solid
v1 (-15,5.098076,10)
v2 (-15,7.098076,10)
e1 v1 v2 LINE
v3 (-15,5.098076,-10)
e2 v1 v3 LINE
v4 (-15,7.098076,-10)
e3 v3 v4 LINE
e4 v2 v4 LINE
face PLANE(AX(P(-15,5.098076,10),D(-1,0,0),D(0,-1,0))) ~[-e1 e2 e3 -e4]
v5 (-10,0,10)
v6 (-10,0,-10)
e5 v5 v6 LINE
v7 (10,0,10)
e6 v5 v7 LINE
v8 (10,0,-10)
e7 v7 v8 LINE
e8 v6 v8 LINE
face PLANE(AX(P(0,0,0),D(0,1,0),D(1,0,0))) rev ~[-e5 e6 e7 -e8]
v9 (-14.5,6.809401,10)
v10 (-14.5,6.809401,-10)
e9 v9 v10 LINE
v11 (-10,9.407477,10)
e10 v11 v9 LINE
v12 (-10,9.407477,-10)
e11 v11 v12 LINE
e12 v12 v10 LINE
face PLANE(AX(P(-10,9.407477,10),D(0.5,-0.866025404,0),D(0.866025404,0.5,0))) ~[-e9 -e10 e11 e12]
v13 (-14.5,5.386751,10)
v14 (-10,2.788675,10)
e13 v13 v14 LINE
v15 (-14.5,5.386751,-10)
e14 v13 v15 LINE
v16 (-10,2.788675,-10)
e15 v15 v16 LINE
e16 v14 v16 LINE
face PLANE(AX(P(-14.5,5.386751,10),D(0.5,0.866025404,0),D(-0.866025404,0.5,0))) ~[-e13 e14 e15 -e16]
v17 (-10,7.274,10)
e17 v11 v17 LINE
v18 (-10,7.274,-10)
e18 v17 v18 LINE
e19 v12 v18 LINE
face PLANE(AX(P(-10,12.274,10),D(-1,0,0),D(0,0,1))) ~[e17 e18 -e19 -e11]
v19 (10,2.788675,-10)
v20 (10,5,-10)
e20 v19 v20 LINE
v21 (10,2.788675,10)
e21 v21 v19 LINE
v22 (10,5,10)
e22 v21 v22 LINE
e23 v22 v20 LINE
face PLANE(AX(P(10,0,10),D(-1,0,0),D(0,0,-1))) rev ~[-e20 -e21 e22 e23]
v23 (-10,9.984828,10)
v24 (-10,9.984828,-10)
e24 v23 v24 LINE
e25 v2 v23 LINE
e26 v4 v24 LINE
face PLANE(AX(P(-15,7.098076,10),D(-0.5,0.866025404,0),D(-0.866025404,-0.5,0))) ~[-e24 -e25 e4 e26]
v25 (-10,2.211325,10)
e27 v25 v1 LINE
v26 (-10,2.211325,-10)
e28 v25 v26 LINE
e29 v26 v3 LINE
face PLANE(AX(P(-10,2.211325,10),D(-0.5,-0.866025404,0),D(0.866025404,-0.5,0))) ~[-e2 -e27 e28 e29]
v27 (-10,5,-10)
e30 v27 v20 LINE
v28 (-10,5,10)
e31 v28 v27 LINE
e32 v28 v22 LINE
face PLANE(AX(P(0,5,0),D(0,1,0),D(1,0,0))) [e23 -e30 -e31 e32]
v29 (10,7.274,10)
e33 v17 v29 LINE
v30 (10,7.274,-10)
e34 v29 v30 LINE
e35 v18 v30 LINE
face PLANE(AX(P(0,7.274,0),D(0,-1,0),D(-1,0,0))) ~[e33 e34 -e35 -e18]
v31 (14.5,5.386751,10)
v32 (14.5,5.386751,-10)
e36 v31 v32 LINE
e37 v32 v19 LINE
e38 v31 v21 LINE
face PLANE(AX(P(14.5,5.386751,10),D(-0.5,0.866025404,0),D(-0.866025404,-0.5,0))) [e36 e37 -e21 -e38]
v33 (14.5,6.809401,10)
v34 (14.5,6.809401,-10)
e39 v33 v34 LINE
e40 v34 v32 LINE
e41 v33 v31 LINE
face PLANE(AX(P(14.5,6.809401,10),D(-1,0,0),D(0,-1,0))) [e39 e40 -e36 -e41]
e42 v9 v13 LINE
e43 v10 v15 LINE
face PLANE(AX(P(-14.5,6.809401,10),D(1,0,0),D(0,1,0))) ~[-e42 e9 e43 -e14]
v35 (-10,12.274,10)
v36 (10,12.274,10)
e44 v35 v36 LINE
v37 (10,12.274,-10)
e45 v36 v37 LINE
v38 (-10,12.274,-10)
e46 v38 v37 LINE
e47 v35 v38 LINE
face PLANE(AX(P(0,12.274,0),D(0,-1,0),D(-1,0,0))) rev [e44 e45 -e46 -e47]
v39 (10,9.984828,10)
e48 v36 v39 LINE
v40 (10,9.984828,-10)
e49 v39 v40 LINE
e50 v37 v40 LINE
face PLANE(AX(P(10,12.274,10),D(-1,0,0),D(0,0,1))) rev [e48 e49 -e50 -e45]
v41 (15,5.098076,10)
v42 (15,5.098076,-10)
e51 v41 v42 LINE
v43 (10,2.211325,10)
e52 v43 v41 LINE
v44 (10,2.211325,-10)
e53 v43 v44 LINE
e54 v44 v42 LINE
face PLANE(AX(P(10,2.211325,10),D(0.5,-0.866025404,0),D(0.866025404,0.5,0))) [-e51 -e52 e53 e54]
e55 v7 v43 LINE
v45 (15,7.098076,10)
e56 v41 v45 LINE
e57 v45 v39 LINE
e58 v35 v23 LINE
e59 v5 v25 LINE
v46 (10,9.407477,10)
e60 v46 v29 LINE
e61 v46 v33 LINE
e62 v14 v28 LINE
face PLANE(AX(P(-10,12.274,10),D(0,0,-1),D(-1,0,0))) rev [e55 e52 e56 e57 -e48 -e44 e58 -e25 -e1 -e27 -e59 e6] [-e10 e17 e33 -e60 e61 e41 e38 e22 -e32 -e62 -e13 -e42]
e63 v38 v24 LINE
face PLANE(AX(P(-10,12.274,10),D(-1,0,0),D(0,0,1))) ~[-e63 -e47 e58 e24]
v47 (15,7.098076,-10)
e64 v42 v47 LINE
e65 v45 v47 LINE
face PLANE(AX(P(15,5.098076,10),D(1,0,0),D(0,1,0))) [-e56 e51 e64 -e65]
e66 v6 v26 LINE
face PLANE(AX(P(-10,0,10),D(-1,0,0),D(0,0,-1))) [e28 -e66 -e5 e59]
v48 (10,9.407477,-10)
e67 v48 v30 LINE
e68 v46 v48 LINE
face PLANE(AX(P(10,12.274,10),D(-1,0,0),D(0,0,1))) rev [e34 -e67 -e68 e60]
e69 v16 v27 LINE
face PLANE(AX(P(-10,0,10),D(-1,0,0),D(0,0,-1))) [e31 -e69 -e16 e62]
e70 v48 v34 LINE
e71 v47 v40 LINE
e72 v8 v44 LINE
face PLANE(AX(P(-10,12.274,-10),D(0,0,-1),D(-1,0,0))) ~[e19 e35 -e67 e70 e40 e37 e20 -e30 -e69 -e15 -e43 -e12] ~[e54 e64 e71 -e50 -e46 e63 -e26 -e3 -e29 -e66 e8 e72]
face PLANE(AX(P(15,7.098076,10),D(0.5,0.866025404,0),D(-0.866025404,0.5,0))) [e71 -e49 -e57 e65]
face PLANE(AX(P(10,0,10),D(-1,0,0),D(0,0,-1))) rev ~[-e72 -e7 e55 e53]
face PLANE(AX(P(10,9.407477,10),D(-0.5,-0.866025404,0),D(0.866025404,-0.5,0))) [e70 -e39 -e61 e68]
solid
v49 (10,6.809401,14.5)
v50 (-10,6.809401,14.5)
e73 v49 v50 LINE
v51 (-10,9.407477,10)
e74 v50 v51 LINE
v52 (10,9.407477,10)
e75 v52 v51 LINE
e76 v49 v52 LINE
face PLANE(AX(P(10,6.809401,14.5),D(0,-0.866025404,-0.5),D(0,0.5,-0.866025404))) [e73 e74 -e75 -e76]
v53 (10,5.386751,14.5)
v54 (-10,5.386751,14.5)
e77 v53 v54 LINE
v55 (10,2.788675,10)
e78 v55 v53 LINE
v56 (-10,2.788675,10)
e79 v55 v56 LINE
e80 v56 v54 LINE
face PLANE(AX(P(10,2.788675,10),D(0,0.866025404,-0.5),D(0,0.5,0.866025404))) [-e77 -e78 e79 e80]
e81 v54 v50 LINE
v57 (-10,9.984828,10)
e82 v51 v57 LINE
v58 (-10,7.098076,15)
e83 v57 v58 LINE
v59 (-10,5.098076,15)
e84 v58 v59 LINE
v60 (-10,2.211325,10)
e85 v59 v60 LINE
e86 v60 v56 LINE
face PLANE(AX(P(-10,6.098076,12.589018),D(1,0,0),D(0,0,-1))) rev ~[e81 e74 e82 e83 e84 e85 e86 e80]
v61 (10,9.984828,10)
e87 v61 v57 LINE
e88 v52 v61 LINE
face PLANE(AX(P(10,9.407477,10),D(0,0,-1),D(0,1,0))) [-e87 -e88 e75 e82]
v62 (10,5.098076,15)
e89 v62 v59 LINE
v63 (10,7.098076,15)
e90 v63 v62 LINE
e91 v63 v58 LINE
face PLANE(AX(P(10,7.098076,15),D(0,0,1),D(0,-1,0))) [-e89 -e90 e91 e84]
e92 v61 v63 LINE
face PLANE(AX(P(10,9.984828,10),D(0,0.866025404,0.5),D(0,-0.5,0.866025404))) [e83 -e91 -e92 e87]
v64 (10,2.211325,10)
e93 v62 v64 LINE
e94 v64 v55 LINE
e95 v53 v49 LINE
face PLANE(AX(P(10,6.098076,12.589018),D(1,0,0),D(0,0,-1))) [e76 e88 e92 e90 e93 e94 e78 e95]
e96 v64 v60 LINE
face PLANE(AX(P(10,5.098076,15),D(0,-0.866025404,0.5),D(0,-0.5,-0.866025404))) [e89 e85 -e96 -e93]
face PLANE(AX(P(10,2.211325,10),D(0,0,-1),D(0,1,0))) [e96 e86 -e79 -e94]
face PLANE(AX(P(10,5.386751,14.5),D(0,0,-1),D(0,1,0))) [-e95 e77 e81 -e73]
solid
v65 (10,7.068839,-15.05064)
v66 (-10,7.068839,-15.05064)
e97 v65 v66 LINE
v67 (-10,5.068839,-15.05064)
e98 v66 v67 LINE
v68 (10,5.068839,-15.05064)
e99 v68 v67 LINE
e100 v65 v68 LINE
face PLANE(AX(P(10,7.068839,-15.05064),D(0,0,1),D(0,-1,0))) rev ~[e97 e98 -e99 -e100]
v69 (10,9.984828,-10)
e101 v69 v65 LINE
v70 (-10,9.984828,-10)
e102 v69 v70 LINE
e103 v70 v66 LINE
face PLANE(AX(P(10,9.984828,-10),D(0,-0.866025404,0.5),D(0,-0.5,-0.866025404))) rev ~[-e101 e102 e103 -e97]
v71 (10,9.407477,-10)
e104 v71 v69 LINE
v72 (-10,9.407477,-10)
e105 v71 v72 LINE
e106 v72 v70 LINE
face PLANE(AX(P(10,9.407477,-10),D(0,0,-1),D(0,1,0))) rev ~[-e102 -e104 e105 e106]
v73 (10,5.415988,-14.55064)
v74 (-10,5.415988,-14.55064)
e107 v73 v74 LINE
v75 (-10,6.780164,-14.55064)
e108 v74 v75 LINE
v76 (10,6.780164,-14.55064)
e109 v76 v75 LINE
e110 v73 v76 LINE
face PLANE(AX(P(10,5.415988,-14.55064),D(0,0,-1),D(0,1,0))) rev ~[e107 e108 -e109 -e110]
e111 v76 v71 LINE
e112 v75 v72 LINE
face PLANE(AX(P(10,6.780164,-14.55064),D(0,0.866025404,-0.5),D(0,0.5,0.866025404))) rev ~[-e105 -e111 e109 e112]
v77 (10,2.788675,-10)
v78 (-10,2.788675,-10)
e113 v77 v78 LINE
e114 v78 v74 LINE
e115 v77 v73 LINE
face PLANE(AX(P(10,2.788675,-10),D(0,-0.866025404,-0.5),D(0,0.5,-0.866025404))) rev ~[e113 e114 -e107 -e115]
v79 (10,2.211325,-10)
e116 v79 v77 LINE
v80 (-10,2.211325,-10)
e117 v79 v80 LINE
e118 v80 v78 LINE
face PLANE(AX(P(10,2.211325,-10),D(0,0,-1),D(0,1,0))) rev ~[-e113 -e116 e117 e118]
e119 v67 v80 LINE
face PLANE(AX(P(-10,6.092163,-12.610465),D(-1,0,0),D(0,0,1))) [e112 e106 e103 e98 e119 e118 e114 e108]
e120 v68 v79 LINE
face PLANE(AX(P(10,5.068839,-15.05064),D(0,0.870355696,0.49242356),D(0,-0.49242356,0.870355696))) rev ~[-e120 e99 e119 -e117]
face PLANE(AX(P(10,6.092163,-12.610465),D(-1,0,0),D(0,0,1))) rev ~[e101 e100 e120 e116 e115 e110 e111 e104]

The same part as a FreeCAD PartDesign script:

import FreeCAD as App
import Part
import Sketcher
from FreeCAD import Vector
Q = App.Units.Quantity


def add_polygon(sketch, points):
    """Adds a closed chain of lines whose ends are joined by coincident constraints."""
    first, n = sketch.GeometryCount, len(points)
    for a, b in zip(points, points[1:] + points[:1]):
        sketch.addGeometry(Part.LineSegment(App.Vector(*a, 0), App.Vector(*b, 0)), False)
    for i in range(n):
        sketch.addConstraint(Sketcher.Constraint("Coincident", first + i, 2, first + (i + 1) % n, 1))

doc = App.newDocument("Part")
body = doc.addObject("PartDesign::Body", "Body")

# Sketch on XZ plane
sketch1 = doc.addObject("Sketcher::SketchObject", "Sketch")
body.addObject(sketch1)
sketch1.AttachmentSupport = (doc.XZ_Plane, [""])
sketch1.MapMode = "FlatFace"
add_polygon(sketch1, [(-10, -10), (-10, 10), (10, 10), (10, -10)])  # lines 0-3
sketch1.addConstraint([
    Sketcher.Constraint("Vertical", 0),
    Sketcher.Constraint("Horizontal", 1),
    Sketcher.Constraint("Vertical", 2),
    Sketcher.Constraint("Horizontal", 3),
    Sketcher.Constraint("Symmetric", 0, 2, 2, 2, -1, 1),
    Sketcher.Constraint("Equal", 3, 0),
    Sketcher.Constraint("DistanceX", 1, 1, 1, 2, Q("20 mm")),
])
pad1 = doc.addObject("PartDesign::Pad", "Pad")
body.addObject(pad1)
pad1.Profile = sketch1
pad1.Length = 5
pad1.Reversed = True

# Sketch on XY plane
sketch2 = doc.addObject("Sketcher::SketchObject", "Sketch001")
body.addObject(sketch2)
sketch2.AttachmentSupport = (doc.XY_Plane, [""])
sketch2.MapMode = "FlatFace"
sketch2.AttachmentOffset = App.Placement(Vector(0, 0, 10), App.Rotation())
add_polygon(sketch2, [(10, 2.2), (15, 5.1), (15, 7.1), (10, 10), (10, 9.4), (14.5, 6.8), (14.5, 5.4), (10, 2.8)])  # lines 0-7
sketch2.addConstraint([
    Sketcher.Constraint("Vertical", 1),
    Sketcher.Constraint("Vertical", 3),
    Sketcher.Constraint("Vertical", 5),
    Sketcher.Constraint("Vertical", 7),
    Sketcher.Constraint("Parallel", 2, 4),
    Sketcher.Constraint("Parallel", 0, 6),
    Sketcher.Constraint("Vertical", 3, 2, 6, 2),
    Sketcher.Constraint("Equal", 3, 7),
    Sketcher.Constraint("Equal", 0, 2),
    Sketcher.Constraint("DistanceY", 1, 1, 1, 2, Q("2 mm")),
    Sketcher.Constraint("Angle", 0, Q("30 deg")),
    Sketcher.Constraint("DistanceX", -1, 1, 0, 2, Q("15 mm")),
    Sketcher.Constraint("DistanceX", -1, 1, 2, 2, Q("10 mm")),
    Sketcher.Constraint("DistanceX", -1, 1, 4, 2, Q("14.5 mm")),
    Sketcher.Constraint("DistanceY", 3, 2, 3, 1, Q("0.57735 mm")),
    Sketcher.Constraint("DistanceY", -1, 1, 4, 2, Q("6.809401 mm")),
])
pad2 = doc.addObject("PartDesign::Pad", "Pad001")
body.addObject(pad2)
pad2.Profile = sketch2
pad2.Length = 20
pad2.Reversed = True
doc.recompute()

mirrored = doc.addObject("PartDesign::Mirrored", "Mirrored")
body.addObject(mirrored)
mirrored.Originals = [pad2]
mirrored.MirrorPlane = (doc.YZ_Plane, [""])
body.Tip = mirrored
doc.recompute()

datumplane = doc.addObject("PartDesign::Plane", "DatumPlane")
body.addObject(datumplane)
datumplane.AttachmentSupport = (doc.XZ_Plane, [""])
datumplane.MapMode = "FlatFace"
datumplane.AttachmentOffset = App.Placement(Vector(0, 0, -6.137), App.Rotation())
mirrored2 = doc.addObject("PartDesign::Mirrored", "Mirrored001")
body.addObject(mirrored2)
mirrored2.Originals = [pad1]
mirrored2.MirrorPlane = (datumplane, [""])
body.Tip = mirrored2
body2 = doc.addObject("PartDesign::Body", "Body001")

# Sketch on YZ plane
sketch3 = doc.addObject("Sketcher::SketchObject", "Sketch002")
body2.addObject(sketch3)
sketch3.AttachmentSupport = (doc.getObject("YZ_Plane001"), [""])
sketch3.MapMode = "FlatFace"
sketch3.AttachmentOffset = App.Placement(Vector(0, 0, 10), App.Rotation())
add_polygon(sketch3, [(2.2, 10), (2.8, 10), (5.4, 14.5), (6.8, 14.5), (9.4, 10), (10, 10), (7.1, 15), (5.1, 15)])  # lines 0-7
sketch3.addConstraint([
    Sketcher.Constraint("Horizontal", 0),
    Sketcher.Constraint("Horizontal", 2),
    Sketcher.Constraint("Horizontal", 4),
    Sketcher.Constraint("Horizontal", 6),
    Sketcher.Constraint("Parallel", 3, 5),
    Sketcher.Constraint("Parallel", 1, 7),
    Sketcher.Constraint("Horizontal", 0, 2, 3, 2),
    Sketcher.Constraint("Equal", 0, 4),
    Sketcher.Constraint("Equal", 1, 3),
    Sketcher.Constraint("DistanceX", 6, 2, 6, 1, Q("2 mm")),
    Sketcher.Constraint("Angle", 1, Q("60 deg")),
    Sketcher.Constraint("DistanceY", -1, 1, 0, 2, Q("10 mm")),
    Sketcher.Constraint("DistanceY", -1, 1, 5, 2, Q("15 mm")),
    Sketcher.Constraint("DistanceY", -1, 1, 1, 2, Q("14.5 mm")),
    Sketcher.Constraint("DistanceX", 0, 1, 0, 2, Q("0.57735 mm")),
    Sketcher.Constraint("DistanceX", -1, 1, 2, 2, Q("6.809401 mm")),
])
pad3 = doc.addObject("PartDesign::Pad", "Pad002")
body2.addObject(pad3)
pad3.Profile = sketch3
pad3.Length = 20
pad3.Reversed = True
body3 = doc.addObject("PartDesign::Body", "Body002")

# Sketch on YZ plane
sketch4 = doc.addObject("Sketcher::SketchObject", "Sketch003")
body3.addObject(sketch4)
sketch4.AttachmentSupport = (doc.getObject("YZ_Plane002"), [""])
sketch4.MapMode = "FlatFace"
sketch4.AttachmentOffset = App.Placement(Vector(0, 0, 10), App.Rotation())
add_polygon(sketch4, [(2.8, -10), (2.2, -10), (5.1, -15.1), (7.1, -15.1), (10, -10), (9.4, -10), (6.8, -14.6), (5.4, -14.6)])  # lines 0-7
sketch4.addConstraint([
    Sketcher.Constraint("Horizontal", 0),
    Sketcher.Constraint("Horizontal", 2),
    Sketcher.Constraint("Horizontal", 4),
    Sketcher.Constraint("Horizontal", 6),
    Sketcher.Constraint("Parallel", 3, 5),
    Sketcher.Constraint("Horizontal", 0, 2, 3, 2),
    Sketcher.Constraint("Equal", 0, 4),
    Sketcher.Constraint("Equal", 5, 7),
    Sketcher.Constraint("DistanceX", 2, 1, 2, 2, Q("2 mm")),
    Sketcher.Constraint("Angle", 3, Q("60 deg")),
    Sketcher.Constraint("DistanceY", 0, 2, -1, 1, Q("10 mm")),
    Sketcher.Constraint("Angle", 1, Q("-60.5 deg")),
    Sketcher.Constraint("DistanceY", 2, 2, 5, 2, Q("0.5 mm")),
    Sketcher.Constraint("DistanceX", 0, 2, 0, 1, Q("0.57735 mm")),
    Sketcher.Constraint("Distance", 1, Q("5.802961 mm")),
    Sketcher.Constraint("DistanceX", -1, 1, 1, 2, Q("5.068839 mm")),
])
pad4 = doc.addObject("PartDesign::Pad", "Pad003")
body3.addObject(pad4)
pad4.Profile = sketch4
pad4.Length = 20
pad4.Reversed = True

doc.recompute()
